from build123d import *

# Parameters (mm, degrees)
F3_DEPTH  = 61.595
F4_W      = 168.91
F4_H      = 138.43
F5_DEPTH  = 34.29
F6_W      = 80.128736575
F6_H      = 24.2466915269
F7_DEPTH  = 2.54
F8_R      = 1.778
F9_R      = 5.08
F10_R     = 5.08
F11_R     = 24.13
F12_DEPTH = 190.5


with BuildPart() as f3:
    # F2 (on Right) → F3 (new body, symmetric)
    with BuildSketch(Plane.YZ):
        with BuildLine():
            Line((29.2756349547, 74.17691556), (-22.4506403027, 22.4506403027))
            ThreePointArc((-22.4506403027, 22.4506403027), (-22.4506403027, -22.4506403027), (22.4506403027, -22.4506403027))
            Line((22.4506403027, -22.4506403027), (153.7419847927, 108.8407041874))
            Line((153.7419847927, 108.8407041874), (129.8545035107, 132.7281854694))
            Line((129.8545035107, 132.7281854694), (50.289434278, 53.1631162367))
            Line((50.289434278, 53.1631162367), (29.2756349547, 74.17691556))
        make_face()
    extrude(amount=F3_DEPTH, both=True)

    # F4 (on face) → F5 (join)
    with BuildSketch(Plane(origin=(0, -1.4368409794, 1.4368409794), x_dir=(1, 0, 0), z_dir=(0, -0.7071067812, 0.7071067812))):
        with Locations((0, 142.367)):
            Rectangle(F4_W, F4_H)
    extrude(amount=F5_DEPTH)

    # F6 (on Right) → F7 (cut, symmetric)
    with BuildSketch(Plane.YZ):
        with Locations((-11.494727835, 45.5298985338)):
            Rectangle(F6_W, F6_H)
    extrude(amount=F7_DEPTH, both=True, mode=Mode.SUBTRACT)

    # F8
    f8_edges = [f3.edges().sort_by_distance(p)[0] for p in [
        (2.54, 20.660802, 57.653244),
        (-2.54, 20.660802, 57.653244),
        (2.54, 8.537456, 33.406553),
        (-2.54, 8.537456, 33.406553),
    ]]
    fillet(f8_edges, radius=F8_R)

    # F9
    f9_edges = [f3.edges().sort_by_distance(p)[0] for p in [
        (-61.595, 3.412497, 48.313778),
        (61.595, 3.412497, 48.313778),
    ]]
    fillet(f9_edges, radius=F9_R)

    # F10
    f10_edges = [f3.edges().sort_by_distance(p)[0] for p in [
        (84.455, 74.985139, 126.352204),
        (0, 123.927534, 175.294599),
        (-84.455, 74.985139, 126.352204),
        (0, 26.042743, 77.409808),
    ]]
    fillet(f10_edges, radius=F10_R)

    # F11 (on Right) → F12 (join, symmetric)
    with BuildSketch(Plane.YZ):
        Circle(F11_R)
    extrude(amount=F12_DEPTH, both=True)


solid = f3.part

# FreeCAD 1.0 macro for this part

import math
import FreeCAD as App
import Part
import Sketcher
Q = App.Units.Quantity


def edges_at(feature, points):
    """Names of the edges that pass closest to the given points."""
    edges = feature.Shape.Edges
    near = lambda p: min(range(len(edges)), key=lambda i: edges[i].distToShape(Part.Vertex(*p))[0])
    return sorted({f"Edge{near(p) + 1}" for p in points})


def add_polygon(sketch, points):
    """Adds a closed chain of lines whose ends are joined by coincident constraints."""
    first, n = sketch.GeometryCount, len(points)
    for a, b in zip(points, points[1:] + points[:1]):
        sketch.addGeometry(Part.LineSegment(App.Vector(*a, 0), App.Vector(*b, 0)), False)
    for i in range(n):
        sketch.addConstraint(Sketcher.Constraint("Coincident", first + i, 2, first + (i + 1) % n, 1))

doc = App.newDocument("Part")
body = doc.addObject("PartDesign::Body", "Body")

# Sketch on YZ plane
sketch1 = body.newObject("Sketcher::SketchObject", "Sketch")
sketch1.AttachmentSupport = (doc.getObject("YZ_Plane"), [""])
sketch1.MapMode = "FlatFace"
sketch1.addGeometry(Part.LineSegment(App.Vector(29, 74, 0), App.Vector(-22, 22, 0)), False)
sketch1.addGeometry(Part.ArcOfCircle(Part.Circle(App.Vector(0, 0, 0), App.Vector(0, 0, 1), 32), math.radians(135), math.radians(315)), False)
sketch1.addGeometry(Part.LineSegment(App.Vector(22, -22, 0), App.Vector(154, 109, 0)), False)
sketch1.addGeometry(Part.LineSegment(App.Vector(154, 109, 0), App.Vector(130, 133, 0)), False)
sketch1.addGeometry(Part.LineSegment(App.Vector(130, 133, 0), App.Vector(50, 53, 0)), False)
sketch1.addGeometry(Part.LineSegment(App.Vector(50, 53, 0), App.Vector(29, 74, 0)), False)
sketch1.addConstraint(Sketcher.Constraint("Tangent", 0, 2, 1, 1))
sketch1.addConstraint(Sketcher.Constraint("Tangent", 1, 2, 2, 1))
sketch1.addConstraint(Sketcher.Constraint("Coincident", 2, 2, 3, 1))
sketch1.addConstraint(Sketcher.Constraint("Coincident", 3, 2, 4, 1))
sketch1.addConstraint(Sketcher.Constraint("Coincident", 4, 2, 5, 1))
sketch1.addConstraint(Sketcher.Constraint("Coincident", 5, 2, 0, 1))
sketch1.addConstraint(Sketcher.Constraint("Coincident", 1, 3, -1, 1))
sketch1.addConstraint(Sketcher.Constraint("Parallel", 0, 2))
sketch1.addConstraint(Sketcher.Constraint("Perpendicular", 2, 3))
sketch1.addConstraint(Sketcher.Constraint("Perpendicular", 3, 4))
sketch1.addConstraint(Sketcher.Constraint("Perpendicular", 4, 5))
sketch1.addConstraint(Sketcher.Constraint("Radius", 1, Q("1.25 in")))
sketch1.addConstraint(Sketcher.Constraint("Angle", 0, Q("-135 deg")))
sketch1.addConstraint(Sketcher.Constraint("Distance", 0, Q("2.88 in")))
sketch1.addConstraint(Sketcher.Constraint("Distance", 2, Q("7.31 in")))
sketch1.addConstraint(Sketcher.Constraint("Distance", 3, Q("1.33 in")))
pad1 = body.newObject("PartDesign::Pad", "Pad")
pad1.Profile = sketch1
pad1.Length = Q("4.85 in")
pad1.Midplane = True

# Sketch on an angled plane
sketch2 = body.newObject("Sketcher::SketchObject", "Sketch001")
sketch2.Placement = App.Placement(App.Vector(0, -1.436841, 1.436841), App.Rotation(App.Vector(1, 0, 0), App.Vector(0, 0.707106781, 0.707106781), App.Vector(0, -0.707106781, 0.707106781), "ZXY"))
add_polygon(sketch2, [(-84, 212), (-84, 73), (84, 73), (84, 212)])  # lines 0-3
sketch2.addConstraint(Sketcher.Constraint("Vertical", 0))
sketch2.addConstraint(Sketcher.Constraint("Horizontal", 1))
sketch2.addConstraint(Sketcher.Constraint("Vertical", 2))
sketch2.addConstraint(Sketcher.Constraint("Horizontal", 3))
sketch2.addConstraint(Sketcher.Constraint("DistanceX", 1, 1, 1, 2, Q("6.65 in")))
sketch2.addConstraint(Sketcher.Constraint("DistanceY", 0, 2, 0, 1, Q("5.45 in")))
sketch2.addConstraint(Sketcher.Constraint("DistanceY", -1, 1, 0, 2, Q("2.88 in")))
sketch2.addConstraint(Sketcher.Constraint("DistanceX", 0, 2, -1, 1, Q("3.325 in")))
pad2 = body.newObject("PartDesign::Pad", "Pad001")
pad2.Profile = sketch2
pad2.Length = Q("1.35 in")

# Sketch on YZ plane
sketch3 = body.newObject("Sketcher::SketchObject", "Sketch002")
sketch3.AttachmentSupport = (doc.getObject("YZ_Plane"), [""])
sketch3.MapMode = "FlatFace"
add_polygon(sketch3, [(-52, 58), (-52, 33), (29, 33), (29, 58)])  # lines 0-3
sketch3.addConstraint(Sketcher.Constraint("Vertical", 0))
sketch3.addConstraint(Sketcher.Constraint("Horizontal", 1))
sketch3.addConstraint(Sketcher.Constraint("Vertical", 2))
sketch3.addConstraint(Sketcher.Constraint("Horizontal", 3))
sketch3.addConstraint(Sketcher.Constraint("DistanceY", 0, 2, 0, 1, Q("24.246692 mm")))
sketch3.addConstraint(Sketcher.Constraint("DistanceX", 1, 1, 1, 2, Q("80.128737 mm")))
sketch3.addConstraint(Sketcher.Constraint("DistanceX", -1, 1, 1, 2, Q("28.56964 mm")))
sketch3.addConstraint(Sketcher.Constraint("DistanceY", -1, 1, 0, 2, Q("33.406553 mm")))
pocket1 = body.newObject("PartDesign::Pocket", "Pocket")
pocket1.Profile = sketch3
pocket1.Length = Q("0.2 in")
pocket1.Midplane = True
doc.recompute()

fillet = body.newObject("PartDesign::Fillet", "Fillet")
fillet.Base = (pocket1, edges_at(pocket1, [
    (2.54, 20.661, 57.653),
    (-2.54, 20.661, 57.653),
    (2.54, 8.537, 33.407),
    (-2.54, 8.537, 33.407),
]))
fillet.Radius = Q("0.07 in")
doc.recompute()

fillet2 = body.newObject("PartDesign::Fillet", "Fillet001")
fillet2.Base = (fillet, edges_at(fillet, [(-61.595, 3.412, 48.314), (61.595, 3.412, 48.314)]))
fillet2.Radius = Q("0.2 in")
doc.recompute()

fillet3 = body.newObject("PartDesign::Fillet", "Fillet002")
fillet3.Base = (fillet2, edges_at(fillet2, [
    (84.455, 74.985, 126.352),
    (0, 123.928, 175.295),
    (-84.455, 74.985, 126.352),
    (0, 26.043, 77.41),
]))
fillet3.Radius = Q("0.2 in")

# Sketch on YZ plane
sketch4 = body.newObject("Sketcher::SketchObject", "Sketch003")
sketch4.AttachmentSupport = (doc.getObject("YZ_Plane"), [""])
sketch4.MapMode = "FlatFace"
sketch4.addGeometry(Part.Circle(App.Vector(0, 0, 0), App.Vector(0, 0, 1), 24), False)
sketch4.addConstraint(Sketcher.Constraint("Coincident", 0, 3, -1, 1))
sketch4.addConstraint(Sketcher.Constraint("Diameter", 0, Q("1.9 in")))
pad3 = body.newObject("PartDesign::Pad", "Pad002")
pad3.Profile = sketch4
pad3.Length = Q("15 in")
pad3.Midplane = True

doc.recompute()
